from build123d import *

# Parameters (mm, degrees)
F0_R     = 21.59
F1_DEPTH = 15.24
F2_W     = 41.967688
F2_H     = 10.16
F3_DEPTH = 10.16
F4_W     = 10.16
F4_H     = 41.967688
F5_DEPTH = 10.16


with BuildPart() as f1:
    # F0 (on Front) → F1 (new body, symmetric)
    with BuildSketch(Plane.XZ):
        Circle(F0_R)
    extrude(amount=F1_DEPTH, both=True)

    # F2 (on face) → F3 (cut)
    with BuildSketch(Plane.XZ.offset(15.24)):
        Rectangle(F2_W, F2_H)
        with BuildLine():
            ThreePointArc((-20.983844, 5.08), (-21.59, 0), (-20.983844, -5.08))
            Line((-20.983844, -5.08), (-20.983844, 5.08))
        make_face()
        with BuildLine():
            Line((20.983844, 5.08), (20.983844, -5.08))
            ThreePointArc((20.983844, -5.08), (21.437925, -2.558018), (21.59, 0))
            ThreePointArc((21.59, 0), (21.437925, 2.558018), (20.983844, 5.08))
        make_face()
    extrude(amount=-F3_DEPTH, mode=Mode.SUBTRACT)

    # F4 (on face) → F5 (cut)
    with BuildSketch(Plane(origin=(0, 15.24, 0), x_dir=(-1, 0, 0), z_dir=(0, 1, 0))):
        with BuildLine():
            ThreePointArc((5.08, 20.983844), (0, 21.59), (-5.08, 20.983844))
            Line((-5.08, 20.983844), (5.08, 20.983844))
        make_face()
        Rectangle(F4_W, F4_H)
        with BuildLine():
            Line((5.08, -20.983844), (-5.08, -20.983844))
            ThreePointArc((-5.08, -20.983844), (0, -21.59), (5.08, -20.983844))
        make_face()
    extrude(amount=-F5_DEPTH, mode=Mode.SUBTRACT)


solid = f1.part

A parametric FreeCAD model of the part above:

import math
import FreeCAD as App
import Part
import Sketcher

V = App.Vector
Q = App.Units.Quantity

doc = App.newDocument("Part")
body = doc.addObject("PartDesign::Body", "Body")

# Sketch on XZ plane
sketch1 = doc.addObject("Sketcher::SketchObject", "Sketch")
body.addObject(sketch1)
sketch1.AttachmentSupport = (doc.XZ_Plane, [""])
sketch1.MapMode = "FlatFace"
sketch1.addGeometry(Part.Circle(V(0, 0, 0), V(0, 0, 1), 22), False)
sketch1.addConstraint(Sketcher.Constraint("Coincident", 0, 3, -1, 1))
sketch1.addConstraint(Sketcher.Constraint("Diameter", 0, Q("1.7 in")))
pad1 = doc.addObject("PartDesign::Pad", "Pad")
body.addObject(pad1)
pad1.Profile = sketch1
pad1.Length = Q("1.2 in")
pad1.Midplane = True

# Sketch on XZ plane
sketch2 = doc.addObject("Sketcher::SketchObject", "Sketch001")
body.addObject(sketch2)
sketch2.AttachmentSupport = (doc.XZ_Plane, [""])
sketch2.MapMode = "FlatFace"
sketch2.AttachmentOffset = App.Placement(V(0, 0, 0.6 * 25.4), App.Rotation())
sketch2.addGeometry(Part.LineSegment(V(-21, -5, 0), V(21, -5, 0)), False)
sketch2.addGeometry(Part.ArcOfCircle(Part.Circle(V(0, 0, 0), V(0, 0, 1), 22), math.radians(-13.61), math.radians(0)), False)
sketch2.addGeometry(Part.ArcOfCircle(Part.Circle(V(0, 0, 0), V(0, 0, 1), 22), math.radians(0), math.radians(13.61)), False)
sketch2.addGeometry(Part.LineSegment(V(21, 5, 0), V(-21, 5, 0)), False)
sketch2.addGeometry(Part.ArcOfCircle(Part.Circle(V(0, 0, 0), V(0, 0, 1), 22), math.radians(166), math.radians(194)), False)
sketch2.addConstraint(Sketcher.Constraint("Coincident", 0, 2, 1, 1))
sketch2.addConstraint(Sketcher.Constraint("Tangent", 1, 2, 2, 1))
sketch2.addConstraint(Sketcher.Constraint("Coincident", 2, 2, 3, 1))
sketch2.addConstraint(Sketcher.Constraint("Coincident", 3, 2, 4, 1))
sketch2.addConstraint(Sketcher.Constraint("Coincident", 4, 2, 0, 1))
sketch2.addConstraint(Sketcher.Constraint("Horizontal", 0))
sketch2.addConstraint(Sketcher.Constraint("Horizontal", 3))
sketch2.addConstraint(Sketcher.Constraint("Coincident", 4, 3, -1, 1))
sketch2.addConstraint(Sketcher.Constraint("Equal", 1, 2))
sketch2.addConstraint(Sketcher.Constraint("Symmetric", 0, 2, 3, 2, -1, 1))
sketch2.addConstraint(Sketcher.Constraint("PointOnObject", 1, 2, -1))
sketch2.addConstraint(Sketcher.Constraint("Vertical", 0, 2, 2, 2))
sketch2.addConstraint(Sketcher.Constraint("DistanceY", 0, 2, -1, 1, Q("0.2 in")))
sketch2.addConstraint(Sketcher.Constraint("DistanceX", -1, 1, 1, 2, Q("0.85 in")))
sketch2.addConstraint(Sketcher.Constraint("Radius", 1, Q("21.590066 mm")))
pocket1 = doc.addObject("PartDesign::Pocket", "Pocket")
body.addObject(pocket1)
pocket1.Profile = sketch2
pocket1.Length = Q("0.4 in")

# Sketch on XZ plane
sketch3 = doc.addObject("Sketcher::SketchObject", "Sketch002")
body.addObject(sketch3)
sketch3.AttachmentSupport = (doc.XZ_Plane, [""])
sketch3.MapMode = "FlatFace"
sketch3.AttachmentOffset = App.Placement(V(0, 0, -0.6 * 25.4), App.Rotation())
sketch3.addGeometry(Part.ArcOfCircle(Part.Circle(V(0, 0, 0), V(0, 0, 1), 22), math.radians(76), math.radians(104)), False)
sketch3.addGeometry(Part.LineSegment(V(5, 21, 0), V(5, -21, 0)), False)
sketch3.addGeometry(Part.ArcOfCircle(Part.Circle(V(0, 0, 0), V(0, 0, 1), 22), math.radians(-104), math.radians(-76)), False)
sketch3.addGeometry(Part.LineSegment(V(-5, -21, 0), V(-5, 21, 0)), False)
sketch3.addConstraint(Sketcher.Constraint("Coincident", 0, 1, 1, 1))
sketch3.addConstraint(Sketcher.Constraint("Coincident", 1, 2, 2, 2))
sketch3.addConstraint(Sketcher.Constraint("Coincident", 2, 1, 3, 1))
sketch3.addConstraint(Sketcher.Constraint("Coincident", 3, 2, 0, 2))
sketch3.addConstraint(Sketcher.Constraint("Vertical", 1))
sketch3.addConstraint(Sketcher.Constraint("Vertical", 3))
sketch3.addConstraint(Sketcher.Constraint("Coincident", 0, 3, -1, 1))
sketch3.addConstraint(Sketcher.Constraint("Coincident", 2, 3, -1, 1))
sketch3.addConstraint(Sketcher.Constraint("Equal", 0, 2))
sketch3.addConstraint(Sketcher.Constraint("Horizontal", 1, 2, 2, 1))
sketch3.addConstraint(Sketcher.Constraint("DistanceX", -1, 1, 0, 1, Q("0.2 in")))
sketch3.addConstraint(Sketcher.Constraint("Radius", 0, Q("21.590007 mm")))
pocket2 = doc.addObject("PartDesign::Pocket", "Pocket001")
body.addObject(pocket2)
pocket2.Profile = sketch3
pocket2.Length = Q("0.4 in")
pocket2.Reversed = True

doc.recompute()
